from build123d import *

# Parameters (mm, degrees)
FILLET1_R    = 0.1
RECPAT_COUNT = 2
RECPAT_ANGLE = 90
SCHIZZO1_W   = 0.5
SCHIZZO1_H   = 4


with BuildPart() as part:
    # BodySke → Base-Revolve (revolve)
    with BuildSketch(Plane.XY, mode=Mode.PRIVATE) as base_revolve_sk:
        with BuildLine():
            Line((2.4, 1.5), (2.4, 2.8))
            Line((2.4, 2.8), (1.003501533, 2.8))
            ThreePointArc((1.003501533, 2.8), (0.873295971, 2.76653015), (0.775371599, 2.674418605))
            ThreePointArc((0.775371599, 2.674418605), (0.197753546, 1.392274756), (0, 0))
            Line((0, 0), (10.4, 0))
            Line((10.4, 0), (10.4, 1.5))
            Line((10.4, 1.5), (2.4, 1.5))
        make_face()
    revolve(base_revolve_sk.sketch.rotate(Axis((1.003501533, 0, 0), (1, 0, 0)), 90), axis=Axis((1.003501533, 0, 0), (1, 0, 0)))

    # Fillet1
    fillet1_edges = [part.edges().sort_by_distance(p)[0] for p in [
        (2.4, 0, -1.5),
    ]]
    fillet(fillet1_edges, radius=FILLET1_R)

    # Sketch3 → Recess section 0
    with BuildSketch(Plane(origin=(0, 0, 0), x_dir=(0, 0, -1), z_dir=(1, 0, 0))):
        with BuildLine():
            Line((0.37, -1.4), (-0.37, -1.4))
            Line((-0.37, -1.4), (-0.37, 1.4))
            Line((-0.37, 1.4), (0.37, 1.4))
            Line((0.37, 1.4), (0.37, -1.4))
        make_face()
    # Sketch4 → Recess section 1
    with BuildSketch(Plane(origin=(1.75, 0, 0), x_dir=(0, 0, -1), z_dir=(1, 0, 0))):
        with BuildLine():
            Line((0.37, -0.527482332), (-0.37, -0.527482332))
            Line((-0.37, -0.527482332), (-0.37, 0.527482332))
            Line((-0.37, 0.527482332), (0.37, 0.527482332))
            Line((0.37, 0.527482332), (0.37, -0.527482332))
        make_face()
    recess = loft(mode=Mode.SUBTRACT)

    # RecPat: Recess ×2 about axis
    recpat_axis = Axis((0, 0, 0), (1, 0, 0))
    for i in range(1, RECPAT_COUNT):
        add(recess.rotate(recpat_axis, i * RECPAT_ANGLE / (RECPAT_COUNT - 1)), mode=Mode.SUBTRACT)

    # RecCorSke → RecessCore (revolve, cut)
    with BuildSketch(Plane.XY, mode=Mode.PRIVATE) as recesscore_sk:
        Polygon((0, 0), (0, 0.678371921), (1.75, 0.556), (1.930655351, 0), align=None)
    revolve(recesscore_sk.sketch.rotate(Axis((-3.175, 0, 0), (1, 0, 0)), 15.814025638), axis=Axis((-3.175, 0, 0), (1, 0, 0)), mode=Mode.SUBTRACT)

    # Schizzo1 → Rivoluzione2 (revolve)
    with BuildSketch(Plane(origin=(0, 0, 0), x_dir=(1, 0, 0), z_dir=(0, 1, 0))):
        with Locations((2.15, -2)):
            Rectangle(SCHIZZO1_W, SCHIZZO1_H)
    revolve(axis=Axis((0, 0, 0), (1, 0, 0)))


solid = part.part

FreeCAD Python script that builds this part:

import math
import FreeCAD as App
import Part
import Sketcher

V = App.Vector
Q = App.Units.Quantity


def edges_at(feature, points):
    """Names of the edges that pass closest to the given points."""
    edges = feature.Shape.Edges
    near = lambda p: min(range(len(edges)), key=lambda i: edges[i].distToShape(Part.Vertex(*p))[0])
    return sorted({f"Edge{near(p) + 1}" for p in points})


def add_polygon(sketch, points):
    """Adds a closed chain of lines whose ends are joined by coincident constraints."""
    first, n = sketch.GeometryCount, len(points)
    for a, b in zip(points, points[1:] + points[:1]):
        sketch.addGeometry(Part.LineSegment(App.Vector(*a, 0), App.Vector(*b, 0)), False)
    for i in range(n):
        sketch.addConstraint(Sketcher.Constraint("Coincident", first + i, 2, first + (i + 1) % n, 1))

doc = App.newDocument("Part")
body = doc.addObject("PartDesign::Body", "Body")

sketch1 = doc.addObject("Sketcher::SketchObject", "Sketch")
body.addObject(sketch1)
sketch1.AttachmentSupport = (doc.XY_Plane, [""])
sketch1.MapMode = "FlatFace"
sketch1.addGeometry([
    Part.LineSegment(V(2.4, 1.5, 0), V(2.4, 2.8, 0)),
    Part.LineSegment(V(2.4, 2.8, 0), V(1, 2.8, 0)),
    Part.ArcOfCircle(Part.Circle(V(1, 2.53, 0), V(0, 0, 1), 0.27), math.radians(90), math.radians(148)),
    Part.ArcOfCircle(Part.Circle(V(5, 0, 0), V(0, 0, 1), 5), math.radians(148), math.radians(180)),
    Part.LineSegment(V(0, 0, 0), V(10.4, 0, 0)),
    Part.LineSegment(V(10.4, 0, 0), V(10.4, 1.5, 0)),
    Part.LineSegment(V(10.4, 1.5, 0), V(2.4, 1.5, 0)),
], False)
sketch1.addConstraint([
    Sketcher.Constraint("Coincident", 0, 2, 1, 1),
    Sketcher.Constraint("Tangent", 1, 2, 2, 1),
    Sketcher.Constraint("Tangent", 2, 2, 3, 1),
    Sketcher.Constraint("Coincident", 3, 2, 4, 1),
    Sketcher.Constraint("Coincident", 4, 2, 5, 1),
    Sketcher.Constraint("Coincident", 5, 2, 6, 1),
    Sketcher.Constraint("Coincident", 6, 2, 0, 1),
    Sketcher.Constraint("Vertical", 0),
    Sketcher.Constraint("Horizontal", 1),
    Sketcher.Constraint("Horizontal", 4),
    Sketcher.Constraint("Vertical", 5),
    Sketcher.Constraint("Horizontal", 6),
    Sketcher.Constraint("Coincident", 3, 2, -1, 1),
    Sketcher.Constraint("PointOnObject", 3, 3, -1),
    Sketcher.Constraint("Radius", 3, 5.0),
    Sketcher.Constraint("DistanceX", 6, 2, 6, 1, 8.0),
    Sketcher.Constraint("Radius", 2, 0.27),
    Sketcher.Constraint("DistanceX", 4, 1, 4, 2, 10.4),
    Sketcher.Constraint("DistanceY", 0, 1, 0, 2, 1.3),
    Sketcher.Constraint("DistanceY", 5, 1, 5, 2, 1.5),
])
revolution = doc.addObject("PartDesign::Revolution", "Revolution")
body.addObject(revolution)
revolution.Profile = sketch1
revolution.ReferenceAxis = (sketch1, ["H_Axis"])
revolution.Angle = 360
doc.recompute()

fillet = doc.addObject("PartDesign::Fillet", "Fillet")
body.addObject(fillet)
fillet.Base = (revolution, edges_at(revolution, [(2.4, 0, -1.5)]))
fillet.Radius = 0.1

sketch2 = doc.addObject("Sketcher::SketchObject", "Sketch001")
body.addObject(sketch2)
sketch2.AttachmentSupport = (doc.YZ_Plane, [""])
sketch2.MapMode = "FlatFace"
add_polygon(sketch2, [(-1.4, 0.4), (-1.4, -0.4), (1.4, -0.4), (1.4, 0.4)])
sketch2.addConstraint([
    Sketcher.Constraint("Vertical", 0),
    Sketcher.Constraint("Horizontal", 1),
    Sketcher.Constraint("Vertical", 2),
    Sketcher.Constraint("Horizontal", 3),
    Sketcher.Constraint("Symmetric", 0, 2, 2, 2, -1, 1),
    Sketcher.Constraint("DistanceX", 1, 1, 1, 2, 2.8),
    Sketcher.Constraint("DistanceY", 0, 2, 0, 1, 0.74),
])

sketch3 = doc.addObject("Sketcher::SketchObject", "Sketch002")
body.addObject(sketch3)
sketch3.AttachmentSupport = (doc.YZ_Plane, [""])
sketch3.MapMode = "FlatFace"
sketch3.AttachmentOffset = App.Placement(V(0, 0, 1.75), App.Rotation())
add_polygon(sketch3, [(-0.5, 0.4), (-0.5, -0.4), (0.5, -0.4), (0.5, 0.4)])
sketch3.addConstraint([
    Sketcher.Constraint("Vertical", 0),
    Sketcher.Constraint("Horizontal", 1),
    Sketcher.Constraint("Vertical", 2),
    Sketcher.Constraint("Horizontal", 3),
    Sketcher.Constraint("Symmetric", 0, 2, 2, 2, -1, 1),
    Sketcher.Constraint("DistanceY", 0, 2, 0, 1, 0.74),
    Sketcher.Constraint("DistanceX", 1, 1, 1, 2, 1.054965),
])

subtractiveloft = doc.addObject("PartDesign::SubtractiveLoft", "SubtractiveLoft")
body.addObject(subtractiveloft)
subtractiveloft.Profile = sketch2
subtractiveloft.Sections = [sketch3]
doc.recompute()

polarpattern = doc.addObject("PartDesign::PolarPattern", "PolarPattern")
body.addObject(polarpattern)
polarpattern.Originals = [subtractiveloft]
polarpattern.Axis = (doc.X_Axis, [""])
polarpattern.Angle = 90
polarpattern.Occurrences = 2
body.Tip = polarpattern

sketch4 = doc.addObject("Sketcher::SketchObject", "Sketch003")
body.addObject(sketch4)
sketch4.AttachmentSupport = (doc.XY_Plane, [""])
sketch4.MapMode = "FlatFace"
add_polygon(sketch4, [(0, 0.7), (0, 0), (1.9, 0), (1.8, 0.6)])
sketch4.addConstraint([
    Sketcher.Constraint("Vertical", 0),
    Sketcher.Constraint("Horizontal", 1),
    Sketcher.Constraint("Coincident", 0, 2, -1, 1),
    Sketcher.Constraint("Angle", 2, Q("108 deg")),
    Sketcher.Constraint("Angle", 3, Q("176 deg")),
    Sketcher.Constraint("DistanceX", -1, 1, 2, 2, 1.75),
    Sketcher.Constraint("DistanceY", -1, 1, 2, 2, 0.556),
])
groove = doc.addObject("PartDesign::Groove", "Groove")
body.addObject(groove)
groove.Profile = sketch4
groove.ReferenceAxis = (sketch4, ["H_Axis"])
groove.Angle = 360

sketch5 = doc.addObject("Sketcher::SketchObject", "Sketch004")
body.addObject(sketch5)
sketch5.AttachmentSupport = (doc.XZ_Plane, [""])
sketch5.MapMode = "FlatFace"
add_polygon(sketch5, [(1.9, 0), (1.9, 4), (2.4, 4), (2.4, 0)])
sketch5.addConstraint([
    Sketcher.Constraint("Vertical", 0),
    Sketcher.Constraint("Horizontal", 1),
    Sketcher.Constraint("Vertical", 2),
    Sketcher.Constraint("Horizontal", 3),
    Sketcher.Constraint("PointOnObject", 2, 2, -1),
    Sketcher.Constraint("DistanceY", 0, 1, 0, 2, 4.0),
    Sketcher.Constraint("DistanceX", 1, 1, 1, 2, 0.5),
    Sketcher.Constraint("DistanceX", -1, 1, 0, 2, 1.9),
])
revolution2 = doc.addObject("PartDesign::Revolution", "Revolution001")
body.addObject(revolution2)
revolution2.Profile = sketch5
revolution2.ReferenceAxis = (sketch5, ["H_Axis"])
revolution2.Angle = 360

doc.recompute()
